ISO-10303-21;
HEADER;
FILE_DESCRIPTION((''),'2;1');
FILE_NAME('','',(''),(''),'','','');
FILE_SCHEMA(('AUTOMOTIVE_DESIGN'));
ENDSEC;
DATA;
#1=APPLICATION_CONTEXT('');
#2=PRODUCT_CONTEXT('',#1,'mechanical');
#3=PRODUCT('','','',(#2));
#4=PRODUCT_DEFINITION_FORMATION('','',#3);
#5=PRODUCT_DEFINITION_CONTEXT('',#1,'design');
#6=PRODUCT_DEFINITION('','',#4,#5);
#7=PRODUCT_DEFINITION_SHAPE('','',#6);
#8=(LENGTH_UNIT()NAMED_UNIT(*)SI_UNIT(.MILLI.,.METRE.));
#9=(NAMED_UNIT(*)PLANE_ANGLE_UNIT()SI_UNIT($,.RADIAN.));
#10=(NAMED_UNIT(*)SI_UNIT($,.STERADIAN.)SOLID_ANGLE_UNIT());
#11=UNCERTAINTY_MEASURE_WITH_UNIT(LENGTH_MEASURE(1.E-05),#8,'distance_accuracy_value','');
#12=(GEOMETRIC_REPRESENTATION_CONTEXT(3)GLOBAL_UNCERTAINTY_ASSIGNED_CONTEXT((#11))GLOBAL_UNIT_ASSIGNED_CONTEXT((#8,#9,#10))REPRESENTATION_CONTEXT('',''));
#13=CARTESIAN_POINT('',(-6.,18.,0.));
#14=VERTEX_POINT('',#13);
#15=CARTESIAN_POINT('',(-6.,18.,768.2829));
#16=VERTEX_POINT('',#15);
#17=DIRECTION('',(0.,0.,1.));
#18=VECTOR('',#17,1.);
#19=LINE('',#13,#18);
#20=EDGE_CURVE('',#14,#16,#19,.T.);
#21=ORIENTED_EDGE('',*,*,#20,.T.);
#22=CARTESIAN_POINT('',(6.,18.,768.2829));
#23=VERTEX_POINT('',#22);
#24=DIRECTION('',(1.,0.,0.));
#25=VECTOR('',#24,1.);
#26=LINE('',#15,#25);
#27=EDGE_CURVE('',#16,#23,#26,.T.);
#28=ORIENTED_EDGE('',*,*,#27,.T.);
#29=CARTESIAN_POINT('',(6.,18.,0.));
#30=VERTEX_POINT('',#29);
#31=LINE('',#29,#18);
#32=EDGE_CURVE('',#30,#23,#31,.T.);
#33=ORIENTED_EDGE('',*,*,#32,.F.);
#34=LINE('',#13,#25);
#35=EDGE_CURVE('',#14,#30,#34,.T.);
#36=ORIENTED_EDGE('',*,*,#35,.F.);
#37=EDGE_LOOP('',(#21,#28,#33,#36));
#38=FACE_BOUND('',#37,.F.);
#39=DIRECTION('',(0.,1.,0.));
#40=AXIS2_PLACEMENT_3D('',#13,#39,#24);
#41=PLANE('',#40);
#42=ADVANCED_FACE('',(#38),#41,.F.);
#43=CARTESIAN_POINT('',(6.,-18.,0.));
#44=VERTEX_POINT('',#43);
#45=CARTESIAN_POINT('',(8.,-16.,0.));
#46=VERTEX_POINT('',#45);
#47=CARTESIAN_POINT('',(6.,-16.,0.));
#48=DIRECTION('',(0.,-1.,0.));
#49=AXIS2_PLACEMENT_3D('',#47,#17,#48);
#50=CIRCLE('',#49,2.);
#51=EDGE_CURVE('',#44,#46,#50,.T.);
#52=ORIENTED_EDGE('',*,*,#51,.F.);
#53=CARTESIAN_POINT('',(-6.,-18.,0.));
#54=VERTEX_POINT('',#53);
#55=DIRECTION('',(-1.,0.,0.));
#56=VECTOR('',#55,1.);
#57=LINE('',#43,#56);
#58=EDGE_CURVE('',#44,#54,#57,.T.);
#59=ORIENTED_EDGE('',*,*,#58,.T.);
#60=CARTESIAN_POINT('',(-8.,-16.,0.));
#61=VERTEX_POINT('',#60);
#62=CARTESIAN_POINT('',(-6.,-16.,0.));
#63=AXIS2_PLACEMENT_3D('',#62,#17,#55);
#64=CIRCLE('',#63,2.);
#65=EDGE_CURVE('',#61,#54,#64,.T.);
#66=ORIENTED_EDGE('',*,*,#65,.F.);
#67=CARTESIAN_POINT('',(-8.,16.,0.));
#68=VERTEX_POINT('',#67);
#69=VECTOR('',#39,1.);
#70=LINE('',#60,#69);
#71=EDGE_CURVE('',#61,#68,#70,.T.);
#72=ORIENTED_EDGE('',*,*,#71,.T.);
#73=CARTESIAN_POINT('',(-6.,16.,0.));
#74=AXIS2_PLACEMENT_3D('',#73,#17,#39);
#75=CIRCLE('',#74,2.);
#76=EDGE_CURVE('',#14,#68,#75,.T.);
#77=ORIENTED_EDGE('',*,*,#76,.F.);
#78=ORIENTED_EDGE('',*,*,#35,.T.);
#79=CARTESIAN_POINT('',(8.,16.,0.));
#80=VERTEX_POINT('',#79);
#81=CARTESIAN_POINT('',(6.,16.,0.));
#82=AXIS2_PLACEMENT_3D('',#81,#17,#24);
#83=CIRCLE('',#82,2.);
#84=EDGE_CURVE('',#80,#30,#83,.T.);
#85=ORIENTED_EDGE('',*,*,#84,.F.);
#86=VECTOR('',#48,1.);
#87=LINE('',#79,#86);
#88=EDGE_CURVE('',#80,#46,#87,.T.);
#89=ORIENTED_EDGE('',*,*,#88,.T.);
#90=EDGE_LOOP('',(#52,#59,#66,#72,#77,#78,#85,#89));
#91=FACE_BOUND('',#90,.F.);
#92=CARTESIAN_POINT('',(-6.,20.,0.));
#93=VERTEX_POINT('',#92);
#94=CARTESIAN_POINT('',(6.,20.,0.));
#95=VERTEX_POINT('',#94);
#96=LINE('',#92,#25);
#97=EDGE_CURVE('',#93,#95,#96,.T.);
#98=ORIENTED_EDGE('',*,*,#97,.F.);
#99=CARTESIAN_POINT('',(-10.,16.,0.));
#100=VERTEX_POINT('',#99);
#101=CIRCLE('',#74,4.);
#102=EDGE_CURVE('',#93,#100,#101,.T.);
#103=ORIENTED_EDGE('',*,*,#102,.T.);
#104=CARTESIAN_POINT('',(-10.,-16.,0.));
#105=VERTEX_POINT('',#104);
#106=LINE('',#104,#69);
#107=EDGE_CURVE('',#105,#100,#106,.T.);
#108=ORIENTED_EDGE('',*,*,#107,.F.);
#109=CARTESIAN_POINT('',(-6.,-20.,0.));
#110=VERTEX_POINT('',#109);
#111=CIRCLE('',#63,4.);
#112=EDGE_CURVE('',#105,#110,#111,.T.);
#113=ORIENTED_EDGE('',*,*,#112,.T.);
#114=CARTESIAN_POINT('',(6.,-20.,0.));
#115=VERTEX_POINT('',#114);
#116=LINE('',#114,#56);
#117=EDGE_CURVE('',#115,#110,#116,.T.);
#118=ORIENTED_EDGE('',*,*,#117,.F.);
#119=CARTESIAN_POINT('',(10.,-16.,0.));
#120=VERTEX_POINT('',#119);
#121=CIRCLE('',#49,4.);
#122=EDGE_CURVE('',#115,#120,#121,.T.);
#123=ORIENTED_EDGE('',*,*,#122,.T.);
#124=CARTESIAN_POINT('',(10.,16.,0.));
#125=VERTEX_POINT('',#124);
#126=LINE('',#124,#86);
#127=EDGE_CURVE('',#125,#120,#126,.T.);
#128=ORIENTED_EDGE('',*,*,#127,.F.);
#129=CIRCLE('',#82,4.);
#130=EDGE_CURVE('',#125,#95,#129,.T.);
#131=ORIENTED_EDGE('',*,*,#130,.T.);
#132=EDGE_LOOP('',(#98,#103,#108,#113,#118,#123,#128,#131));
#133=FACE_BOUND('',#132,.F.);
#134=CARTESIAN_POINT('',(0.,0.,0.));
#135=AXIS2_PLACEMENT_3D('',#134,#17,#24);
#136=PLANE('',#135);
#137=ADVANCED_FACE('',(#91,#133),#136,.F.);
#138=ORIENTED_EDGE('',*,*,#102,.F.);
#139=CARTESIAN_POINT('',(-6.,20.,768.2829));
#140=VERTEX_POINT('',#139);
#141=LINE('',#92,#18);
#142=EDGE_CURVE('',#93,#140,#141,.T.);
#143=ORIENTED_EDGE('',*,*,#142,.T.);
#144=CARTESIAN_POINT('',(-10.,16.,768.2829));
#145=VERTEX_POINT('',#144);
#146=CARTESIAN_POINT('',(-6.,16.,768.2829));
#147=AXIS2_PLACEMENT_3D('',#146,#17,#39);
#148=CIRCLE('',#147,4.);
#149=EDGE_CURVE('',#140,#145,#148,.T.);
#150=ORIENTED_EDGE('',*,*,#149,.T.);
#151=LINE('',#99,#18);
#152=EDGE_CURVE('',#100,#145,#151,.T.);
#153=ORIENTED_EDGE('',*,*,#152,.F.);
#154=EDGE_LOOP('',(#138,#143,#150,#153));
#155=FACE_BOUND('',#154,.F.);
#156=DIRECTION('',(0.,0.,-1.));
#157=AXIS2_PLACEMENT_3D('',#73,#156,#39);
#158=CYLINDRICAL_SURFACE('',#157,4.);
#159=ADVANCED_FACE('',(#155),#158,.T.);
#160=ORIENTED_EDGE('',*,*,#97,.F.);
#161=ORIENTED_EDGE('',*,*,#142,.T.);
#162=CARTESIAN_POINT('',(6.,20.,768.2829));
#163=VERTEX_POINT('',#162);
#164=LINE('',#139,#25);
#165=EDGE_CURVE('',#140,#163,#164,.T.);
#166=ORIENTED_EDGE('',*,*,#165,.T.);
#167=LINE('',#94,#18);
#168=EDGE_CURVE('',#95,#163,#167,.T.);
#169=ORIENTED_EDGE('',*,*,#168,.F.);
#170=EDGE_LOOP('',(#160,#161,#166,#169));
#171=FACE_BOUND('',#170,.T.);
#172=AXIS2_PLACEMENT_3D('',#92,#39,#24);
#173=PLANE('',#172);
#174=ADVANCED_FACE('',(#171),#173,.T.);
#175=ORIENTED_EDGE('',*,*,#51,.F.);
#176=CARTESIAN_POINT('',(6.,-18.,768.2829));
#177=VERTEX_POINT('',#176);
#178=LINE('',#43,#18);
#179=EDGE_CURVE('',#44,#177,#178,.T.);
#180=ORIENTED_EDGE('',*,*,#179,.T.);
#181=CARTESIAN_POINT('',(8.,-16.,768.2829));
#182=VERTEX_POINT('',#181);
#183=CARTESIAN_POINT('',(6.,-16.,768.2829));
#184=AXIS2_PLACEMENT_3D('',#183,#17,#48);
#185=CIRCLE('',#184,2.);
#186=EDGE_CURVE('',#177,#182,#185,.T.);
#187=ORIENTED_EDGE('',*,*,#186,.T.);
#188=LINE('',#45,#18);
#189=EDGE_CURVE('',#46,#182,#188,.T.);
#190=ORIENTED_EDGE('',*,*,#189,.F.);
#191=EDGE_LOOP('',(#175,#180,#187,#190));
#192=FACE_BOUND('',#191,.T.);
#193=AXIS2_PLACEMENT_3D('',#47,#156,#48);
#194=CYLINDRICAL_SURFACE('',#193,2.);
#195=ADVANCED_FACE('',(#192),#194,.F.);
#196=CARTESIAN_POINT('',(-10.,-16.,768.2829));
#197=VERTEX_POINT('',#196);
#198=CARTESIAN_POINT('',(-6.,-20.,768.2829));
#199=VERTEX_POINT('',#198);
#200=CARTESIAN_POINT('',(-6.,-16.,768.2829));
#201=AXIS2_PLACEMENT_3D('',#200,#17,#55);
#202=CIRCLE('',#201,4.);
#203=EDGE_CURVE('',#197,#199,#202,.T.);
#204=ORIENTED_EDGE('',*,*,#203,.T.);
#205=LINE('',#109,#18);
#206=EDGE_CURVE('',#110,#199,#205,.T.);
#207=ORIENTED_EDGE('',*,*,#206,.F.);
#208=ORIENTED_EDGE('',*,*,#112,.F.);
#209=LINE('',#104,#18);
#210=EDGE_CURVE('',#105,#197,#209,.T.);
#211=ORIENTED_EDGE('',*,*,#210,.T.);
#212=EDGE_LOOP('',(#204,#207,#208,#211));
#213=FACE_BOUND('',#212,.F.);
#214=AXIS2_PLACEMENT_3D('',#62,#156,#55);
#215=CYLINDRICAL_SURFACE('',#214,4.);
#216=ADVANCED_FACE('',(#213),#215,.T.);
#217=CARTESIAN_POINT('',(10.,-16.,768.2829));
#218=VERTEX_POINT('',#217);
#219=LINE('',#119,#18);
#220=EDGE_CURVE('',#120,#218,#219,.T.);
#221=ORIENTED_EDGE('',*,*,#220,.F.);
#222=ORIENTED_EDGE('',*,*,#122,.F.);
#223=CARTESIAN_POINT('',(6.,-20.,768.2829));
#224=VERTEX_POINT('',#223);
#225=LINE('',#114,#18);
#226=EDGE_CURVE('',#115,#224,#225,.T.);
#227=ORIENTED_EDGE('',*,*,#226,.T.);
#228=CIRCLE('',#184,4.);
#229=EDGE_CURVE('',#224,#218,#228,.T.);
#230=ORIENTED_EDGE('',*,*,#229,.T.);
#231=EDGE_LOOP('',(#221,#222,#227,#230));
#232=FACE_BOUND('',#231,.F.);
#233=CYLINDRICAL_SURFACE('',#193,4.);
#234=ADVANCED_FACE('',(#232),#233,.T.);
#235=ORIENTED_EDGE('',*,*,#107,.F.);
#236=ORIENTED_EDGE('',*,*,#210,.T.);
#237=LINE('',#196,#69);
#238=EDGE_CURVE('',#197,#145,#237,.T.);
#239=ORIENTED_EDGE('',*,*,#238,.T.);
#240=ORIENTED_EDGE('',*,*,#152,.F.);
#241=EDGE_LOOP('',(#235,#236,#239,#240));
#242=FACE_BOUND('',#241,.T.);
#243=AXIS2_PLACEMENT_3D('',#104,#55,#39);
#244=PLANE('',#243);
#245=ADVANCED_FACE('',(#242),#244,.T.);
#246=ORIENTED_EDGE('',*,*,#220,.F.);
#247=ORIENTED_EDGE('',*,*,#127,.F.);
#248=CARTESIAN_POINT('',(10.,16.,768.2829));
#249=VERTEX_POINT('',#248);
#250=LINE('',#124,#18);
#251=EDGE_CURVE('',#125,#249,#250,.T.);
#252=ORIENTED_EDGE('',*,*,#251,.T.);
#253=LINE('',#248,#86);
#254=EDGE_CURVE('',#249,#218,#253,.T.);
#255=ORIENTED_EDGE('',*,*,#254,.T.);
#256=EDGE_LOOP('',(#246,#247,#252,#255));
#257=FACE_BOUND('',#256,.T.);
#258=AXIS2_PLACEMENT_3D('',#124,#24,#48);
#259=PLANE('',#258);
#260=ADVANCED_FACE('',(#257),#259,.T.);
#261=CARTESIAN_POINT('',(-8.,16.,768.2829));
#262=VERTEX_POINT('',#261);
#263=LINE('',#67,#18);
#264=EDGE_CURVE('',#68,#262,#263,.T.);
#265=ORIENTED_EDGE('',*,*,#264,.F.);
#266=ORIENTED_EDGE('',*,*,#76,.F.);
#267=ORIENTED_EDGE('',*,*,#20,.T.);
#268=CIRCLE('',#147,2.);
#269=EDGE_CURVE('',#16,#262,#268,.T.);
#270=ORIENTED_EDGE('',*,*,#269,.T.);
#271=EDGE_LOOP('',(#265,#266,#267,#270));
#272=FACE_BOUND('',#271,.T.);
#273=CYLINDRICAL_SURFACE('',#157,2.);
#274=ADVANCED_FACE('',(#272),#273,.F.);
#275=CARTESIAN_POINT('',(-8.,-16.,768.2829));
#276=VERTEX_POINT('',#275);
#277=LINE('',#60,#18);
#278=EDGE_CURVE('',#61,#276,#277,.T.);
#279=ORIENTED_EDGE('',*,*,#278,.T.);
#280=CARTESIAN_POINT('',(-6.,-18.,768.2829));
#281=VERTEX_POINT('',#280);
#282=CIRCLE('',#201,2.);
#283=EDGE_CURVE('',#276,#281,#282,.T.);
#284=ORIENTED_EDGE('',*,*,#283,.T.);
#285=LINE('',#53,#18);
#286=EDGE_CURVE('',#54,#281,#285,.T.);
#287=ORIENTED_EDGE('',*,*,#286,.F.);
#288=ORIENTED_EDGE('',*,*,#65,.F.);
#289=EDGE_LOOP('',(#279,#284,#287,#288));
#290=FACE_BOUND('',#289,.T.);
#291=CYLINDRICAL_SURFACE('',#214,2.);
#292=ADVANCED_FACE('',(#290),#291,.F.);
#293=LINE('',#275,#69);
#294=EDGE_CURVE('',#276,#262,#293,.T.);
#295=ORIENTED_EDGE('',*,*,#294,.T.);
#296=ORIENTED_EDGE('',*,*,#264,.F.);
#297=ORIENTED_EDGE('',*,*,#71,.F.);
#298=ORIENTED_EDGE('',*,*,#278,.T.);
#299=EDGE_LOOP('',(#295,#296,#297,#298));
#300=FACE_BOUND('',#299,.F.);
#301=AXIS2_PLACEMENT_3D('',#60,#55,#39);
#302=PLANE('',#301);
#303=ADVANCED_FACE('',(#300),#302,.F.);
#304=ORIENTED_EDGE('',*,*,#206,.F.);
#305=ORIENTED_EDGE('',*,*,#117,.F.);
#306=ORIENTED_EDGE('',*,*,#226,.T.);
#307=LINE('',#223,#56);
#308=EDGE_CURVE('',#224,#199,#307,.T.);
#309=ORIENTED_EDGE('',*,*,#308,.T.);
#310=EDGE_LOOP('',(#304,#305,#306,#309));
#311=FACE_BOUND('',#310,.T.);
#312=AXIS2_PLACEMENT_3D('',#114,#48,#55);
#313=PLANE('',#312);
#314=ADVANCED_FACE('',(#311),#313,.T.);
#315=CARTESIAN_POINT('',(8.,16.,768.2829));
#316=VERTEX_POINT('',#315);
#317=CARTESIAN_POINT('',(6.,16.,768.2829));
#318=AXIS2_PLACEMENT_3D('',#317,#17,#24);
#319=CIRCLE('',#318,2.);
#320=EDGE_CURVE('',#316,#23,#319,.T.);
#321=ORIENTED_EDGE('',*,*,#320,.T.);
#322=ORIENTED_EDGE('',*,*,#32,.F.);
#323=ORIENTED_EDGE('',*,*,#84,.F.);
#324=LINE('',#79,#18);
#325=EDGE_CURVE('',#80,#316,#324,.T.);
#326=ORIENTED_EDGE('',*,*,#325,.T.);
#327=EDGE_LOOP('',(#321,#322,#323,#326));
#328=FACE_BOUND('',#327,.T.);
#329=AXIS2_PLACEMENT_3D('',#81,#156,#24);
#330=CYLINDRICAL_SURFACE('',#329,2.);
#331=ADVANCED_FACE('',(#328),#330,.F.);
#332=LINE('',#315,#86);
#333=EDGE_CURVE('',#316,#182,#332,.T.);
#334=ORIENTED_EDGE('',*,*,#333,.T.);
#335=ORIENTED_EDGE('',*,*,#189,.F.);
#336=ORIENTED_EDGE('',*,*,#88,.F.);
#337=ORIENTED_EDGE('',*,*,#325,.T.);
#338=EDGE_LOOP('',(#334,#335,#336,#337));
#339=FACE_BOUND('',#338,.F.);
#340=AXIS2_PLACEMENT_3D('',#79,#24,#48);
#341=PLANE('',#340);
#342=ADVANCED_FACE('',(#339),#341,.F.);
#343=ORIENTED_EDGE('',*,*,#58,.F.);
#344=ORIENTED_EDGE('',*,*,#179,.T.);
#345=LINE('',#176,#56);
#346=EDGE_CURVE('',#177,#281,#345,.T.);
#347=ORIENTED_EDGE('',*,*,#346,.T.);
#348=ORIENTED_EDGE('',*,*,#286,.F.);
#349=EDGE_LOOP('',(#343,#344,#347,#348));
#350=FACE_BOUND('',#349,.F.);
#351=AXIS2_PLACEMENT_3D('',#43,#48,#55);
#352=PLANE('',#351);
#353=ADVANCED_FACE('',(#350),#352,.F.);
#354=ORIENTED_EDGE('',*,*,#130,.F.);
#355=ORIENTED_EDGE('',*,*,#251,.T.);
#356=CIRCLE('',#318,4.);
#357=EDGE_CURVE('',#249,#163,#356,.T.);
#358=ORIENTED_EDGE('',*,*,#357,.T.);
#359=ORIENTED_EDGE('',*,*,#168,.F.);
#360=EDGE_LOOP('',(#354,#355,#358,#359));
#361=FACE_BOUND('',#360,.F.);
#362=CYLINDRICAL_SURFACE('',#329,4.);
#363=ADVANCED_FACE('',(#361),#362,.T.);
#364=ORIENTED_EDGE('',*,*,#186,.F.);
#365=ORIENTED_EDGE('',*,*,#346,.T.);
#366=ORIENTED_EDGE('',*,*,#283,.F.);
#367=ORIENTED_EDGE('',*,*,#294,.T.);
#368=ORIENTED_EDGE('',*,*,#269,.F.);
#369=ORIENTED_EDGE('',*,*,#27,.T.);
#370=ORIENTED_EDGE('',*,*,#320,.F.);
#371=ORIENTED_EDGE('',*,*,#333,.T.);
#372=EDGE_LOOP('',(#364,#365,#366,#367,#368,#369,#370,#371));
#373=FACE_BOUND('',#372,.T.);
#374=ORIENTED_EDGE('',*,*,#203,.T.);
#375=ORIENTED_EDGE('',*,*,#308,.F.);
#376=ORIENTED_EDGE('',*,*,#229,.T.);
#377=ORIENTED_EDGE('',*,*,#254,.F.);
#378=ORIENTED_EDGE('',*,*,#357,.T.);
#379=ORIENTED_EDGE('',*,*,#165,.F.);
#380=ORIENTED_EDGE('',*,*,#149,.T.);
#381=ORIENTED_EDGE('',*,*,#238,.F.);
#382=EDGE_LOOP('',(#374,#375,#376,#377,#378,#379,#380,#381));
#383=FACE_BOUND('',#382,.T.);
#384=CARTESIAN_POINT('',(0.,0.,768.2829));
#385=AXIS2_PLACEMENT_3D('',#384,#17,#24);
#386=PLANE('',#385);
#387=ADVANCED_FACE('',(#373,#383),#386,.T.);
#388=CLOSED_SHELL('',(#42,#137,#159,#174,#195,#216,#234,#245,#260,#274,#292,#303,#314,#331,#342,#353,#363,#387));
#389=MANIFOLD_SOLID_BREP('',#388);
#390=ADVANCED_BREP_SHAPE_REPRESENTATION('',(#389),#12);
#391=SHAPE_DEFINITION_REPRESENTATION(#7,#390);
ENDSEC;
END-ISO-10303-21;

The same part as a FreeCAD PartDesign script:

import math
import FreeCAD as App
import Part
import Sketcher

V = App.Vector

doc = App.newDocument("Part")
body = doc.addObject("PartDesign::Body", "Body")

sketch1 = body.newObject("Sketcher::SketchObject", "Sketch")
sketch1.AttachmentSupport = (doc.getObject("XY_Plane"), [""])
sketch1.MapMode = "FlatFace"
sketch1.addGeometry(Part.LineSegment(V(-10, 16, 0), V(-10, -16, 0)), False)
sketch1.addGeometry(Part.ArcOfCircle(Part.Circle(V(-6, -16, 0), V(0, 0, 1), 4), math.radians(180), math.radians(270)), False)
sketch1.addGeometry(Part.LineSegment(V(-6, -20, 0), V(6, -20, 0)), False)
sketch1.addGeometry(Part.ArcOfCircle(Part.Circle(V(6, -16, 0), V(0, 0, 1), 4), math.radians(-90), math.radians(0)), False)
sketch1.addGeometry(Part.LineSegment(V(10, -16, 0), V(10, 16, 0)), False)
sketch1.addGeometry(Part.ArcOfCircle(Part.Circle(V(6, 16, 0), V(0, 0, 1), 4), math.radians(0), math.radians(90)), False)
sketch1.addGeometry(Part.LineSegment(V(6, 20, 0), V(-6, 20, 0)), False)
sketch1.addGeometry(Part.ArcOfCircle(Part.Circle(V(-6, 16, 0), V(0, 0, 1), 4), math.radians(90), math.radians(180)), False)
sketch1.addGeometry(Part.ArcOfCircle(Part.Circle(V(-6, 16, 0), V(0, 0, 1), 2), math.radians(90), math.radians(180)), False)
sketch1.addGeometry(Part.LineSegment(V(-6, 18, 0), V(6, 18, 0)), False)
sketch1.addGeometry(Part.ArcOfCircle(Part.Circle(V(6, 16, 0), V(0, 0, 1), 2), math.radians(0), math.radians(90)), False)
sketch1.addGeometry(Part.LineSegment(V(8, 16, 0), V(8, -16, 0)), False)
sketch1.addGeometry(Part.ArcOfCircle(Part.Circle(V(6, -16, 0), V(0, 0, 1), 2), math.radians(-90), math.radians(0)), False)
sketch1.addGeometry(Part.LineSegment(V(6, -18, 0), V(-6, -18, 0)), False)
sketch1.addGeometry(Part.ArcOfCircle(Part.Circle(V(-6, -16, 0), V(0, 0, 1), 2), math.radians(180), math.radians(270)), False)
sketch1.addGeometry(Part.LineSegment(V(-8, -16, 0), V(-8, 16, 0)), False)
sketch1.addConstraint(Sketcher.Constraint("Tangent", 0, 2, 1, 1))
sketch1.addConstraint(Sketcher.Constraint("Tangent", 1, 2, 2, 1))
sketch1.addConstraint(Sketcher.Constraint("Tangent", 2, 2, 3, 1))
sketch1.addConstraint(Sketcher.Constraint("Tangent", 3, 2, 4, 1))
sketch1.addConstraint(Sketcher.Constraint("Tangent", 4, 2, 5, 1))
sketch1.addConstraint(Sketcher.Constraint("Tangent", 5, 2, 6, 1))
sketch1.addConstraint(Sketcher.Constraint("Tangent", 6, 2, 7, 1))
sketch1.addConstraint(Sketcher.Constraint("Tangent", 7, 2, 0, 1))
sketch1.addConstraint(Sketcher.Constraint("Tangent", 8, 1, 9, 1))
sketch1.addConstraint(Sketcher.Constraint("Tangent", 9, 2, 10, 2))
sketch1.addConstraint(Sketcher.Constraint("Tangent", 10, 1, 11, 1))
sketch1.addConstraint(Sketcher.Constraint("Tangent", 11, 2, 12, 2))
sketch1.addConstraint(Sketcher.Constraint("Tangent", 12, 1, 13, 1))
sketch1.addConstraint(Sketcher.Constraint("Tangent", 13, 2, 14, 2))
sketch1.addConstraint(Sketcher.Constraint("Tangent", 14, 1, 15, 1))
sketch1.addConstraint(Sketcher.Constraint("Tangent", 15, 2, 8, 2))
sketch1.addConstraint(Sketcher.Constraint("Vertical", 0))
sketch1.addConstraint(Sketcher.Constraint("Horizontal", 2))
sketch1.addConstraint(Sketcher.Constraint("Vertical", 4))
sketch1.addConstraint(Sketcher.Constraint("Horizontal", 6))
sketch1.addConstraint(Sketcher.Constraint("Horizontal", 9))
sketch1.addConstraint(Sketcher.Constraint("Vertical", 11))
sketch1.addConstraint(Sketcher.Constraint("Horizontal", 13))
sketch1.addConstraint(Sketcher.Constraint("Vertical", 15))
sketch1.addConstraint(Sketcher.Constraint("Coincident", 8, 3, 7, 3))
sketch1.addConstraint(Sketcher.Constraint("Coincident", 10, 3, 5, 3))
sketch1.addConstraint(Sketcher.Constraint("Coincident", 12, 3, 3, 3))
sketch1.addConstraint(Sketcher.Constraint("Equal", 1, 3))
sketch1.addConstraint(Sketcher.Constraint("Equal", 3, 5))
sketch1.addConstraint(Sketcher.Constraint("Equal", 5, 7))
sketch1.addConstraint(Sketcher.Constraint("Equal", 12, 14))
sketch1.addConstraint(Sketcher.Constraint("Symmetric", 1, 3, 5, 3, -1, 1))
sketch1.addConstraint(Sketcher.Constraint("Radius", 1, 4.0))
sketch1.addConstraint(Sketcher.Constraint("Radius", 8, 2.0))
sketch1.addConstraint(Sketcher.Constraint("DistanceX", 0, 2, -1, 1, 10.0))
sketch1.addConstraint(Sketcher.Constraint("DistanceY", 1, 2, -1, 1, 20.0))
pad1 = body.newObject("PartDesign::Pad", "Pad")
pad1.Profile = sketch1
pad1.Length = 768.2829

doc.recompute()
